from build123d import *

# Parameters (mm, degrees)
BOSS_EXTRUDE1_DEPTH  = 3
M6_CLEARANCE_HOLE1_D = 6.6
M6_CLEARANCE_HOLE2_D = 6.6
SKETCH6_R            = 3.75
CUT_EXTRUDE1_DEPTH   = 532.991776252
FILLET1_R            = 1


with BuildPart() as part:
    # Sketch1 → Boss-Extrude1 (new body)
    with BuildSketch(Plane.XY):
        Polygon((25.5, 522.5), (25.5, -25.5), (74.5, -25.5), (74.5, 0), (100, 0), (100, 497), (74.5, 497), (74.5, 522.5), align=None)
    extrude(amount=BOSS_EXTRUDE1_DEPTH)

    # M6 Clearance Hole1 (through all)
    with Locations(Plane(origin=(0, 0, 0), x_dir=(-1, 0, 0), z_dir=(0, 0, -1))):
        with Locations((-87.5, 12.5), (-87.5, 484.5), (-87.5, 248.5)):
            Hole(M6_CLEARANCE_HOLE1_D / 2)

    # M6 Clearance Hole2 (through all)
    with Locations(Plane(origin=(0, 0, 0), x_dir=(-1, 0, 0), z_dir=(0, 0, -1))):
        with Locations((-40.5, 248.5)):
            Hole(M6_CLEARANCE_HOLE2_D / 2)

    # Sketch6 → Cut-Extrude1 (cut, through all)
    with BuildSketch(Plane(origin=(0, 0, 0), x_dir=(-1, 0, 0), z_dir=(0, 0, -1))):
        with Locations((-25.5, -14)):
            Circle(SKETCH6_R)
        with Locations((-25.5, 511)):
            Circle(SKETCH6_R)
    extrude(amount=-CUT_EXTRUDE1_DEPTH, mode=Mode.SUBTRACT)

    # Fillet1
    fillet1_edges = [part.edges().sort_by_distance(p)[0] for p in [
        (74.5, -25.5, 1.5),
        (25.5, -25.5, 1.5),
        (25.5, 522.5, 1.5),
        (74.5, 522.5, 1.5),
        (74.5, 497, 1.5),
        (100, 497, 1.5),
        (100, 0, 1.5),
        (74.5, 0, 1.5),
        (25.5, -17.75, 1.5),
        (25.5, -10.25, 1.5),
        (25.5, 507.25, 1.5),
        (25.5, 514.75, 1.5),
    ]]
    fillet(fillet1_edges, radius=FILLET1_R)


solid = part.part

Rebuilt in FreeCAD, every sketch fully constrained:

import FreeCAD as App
import Part
import Sketcher
from FreeCAD import Vector
Q = App.Units.Quantity


def edges_at(feature, points):
    """Names of the edges that pass closest to the given points."""
    edges = feature.Shape.Edges
    near = lambda p: min(range(len(edges)), key=lambda i: edges[i].distToShape(Part.Vertex(*p))[0])
    return sorted({f"Edge{near(p) + 1}" for p in points})

doc = App.newDocument("Part")
body = doc.addObject("PartDesign::Body", "Body")

sketch1 = body.newObject("Sketcher::SketchObject", "Sketch")
sketch1.AttachmentSupport = (doc.getObject("XY_Plane"), [""])
sketch1.MapMode = "FlatFace"
sketch1.addGeometry([
    Part.LineSegment(Vector(26, 522, 0), Vector(26, -26, 0)),
    Part.LineSegment(Vector(26, -26, 0), Vector(74, -26, 0)),
    Part.LineSegment(Vector(74, -26, 0), Vector(74, 0, 0)),
    Part.LineSegment(Vector(74, 0, 0), Vector(100, 0, 0)),
    Part.LineSegment(Vector(100, 0, 0), Vector(100, 497, 0)),
    Part.LineSegment(Vector(100, 497, 0), Vector(74, 497, 0)),
    Part.LineSegment(Vector(74, 497, 0), Vector(74, 522, 0)),
    Part.LineSegment(Vector(74, 522, 0), Vector(26, 522, 0)),
], False)
sketch1.addConstraint([
    Sketcher.Constraint("Coincident", 0, 2, 1, 1),
    Sketcher.Constraint("Coincident", 1, 2, 2, 1),
    Sketcher.Constraint("Coincident", 2, 2, 3, 1),
    Sketcher.Constraint("Coincident", 3, 2, 4, 1),
    Sketcher.Constraint("Coincident", 4, 2, 5, 1),
    Sketcher.Constraint("Coincident", 5, 2, 6, 1),
    Sketcher.Constraint("Coincident", 6, 2, 7, 1),
    Sketcher.Constraint("Coincident", 7, 2, 0, 1),
    Sketcher.Constraint("Vertical", 0),
    Sketcher.Constraint("Horizontal", 1),
    Sketcher.Constraint("Vertical", 2),
    Sketcher.Constraint("Horizontal", 3),
    Sketcher.Constraint("Vertical", 4),
    Sketcher.Constraint("Horizontal", 5),
    Sketcher.Constraint("Vertical", 6),
    Sketcher.Constraint("Horizontal", 7),
    Sketcher.Constraint("PointOnObject", 2, 2, -1),
    Sketcher.Constraint("Vertical", 2, 2, 5, 2),
    Sketcher.Constraint("Equal", 5, 2),
    Sketcher.Constraint("Equal", 2, 6),
    Sketcher.Constraint("DistanceX", 1, 1, 1, 2, Q("49 mm")),
    Sketcher.Constraint("DistanceY", 0, 2, 0, 1, Q("548 mm")),
    Sketcher.Constraint("DistanceY", 4, 1, 4, 2, Q("497 mm")),
    Sketcher.Constraint("DistanceX", -1, 1, 3, 2, Q("100 mm")),
])
pad1 = body.newObject("PartDesign::Pad", "Pad")
pad1.Profile = sketch1
pad1.Length = 3

sketch2 = body.newObject("Sketcher::SketchObject", "Sketch001")
sketch2.AttachmentSupport = (doc.getObject("XY_Plane"), [""])
sketch2.MapMode = "FlatFace"
sketch2.addGeometry([
    Part.Circle(Vector(87.5, 12.5, 0), Vector(0, 0, 1), 3.3),
    Part.Circle(Vector(87.5, 484.5, 0), Vector(0, 0, 1), 3.3),
    Part.Circle(Vector(87.5, 248.5, 0), Vector(0, 0, 1), 3.3),
], False)
sketch2.addConstraint([
    Sketcher.Constraint("Equal", 0, 1),
    Sketcher.Constraint("Equal", 1, 2),
    Sketcher.Constraint("Vertical", 0, 3, 1, 3),
    Sketcher.Constraint("Vertical", 1, 3, 2, 3),
    Sketcher.Constraint("Diameter", 0, Q("6.6 mm")),
    Sketcher.Constraint("DistanceY", 0, 3, 1, 3, Q("472 mm")),
    Sketcher.Constraint("DistanceY", 0, 3, 2, 3, Q("236 mm")),
    Sketcher.Constraint("DistanceX", -1, 1, 0, 3, Q("87.5 mm")),
    Sketcher.Constraint("DistanceY", -1, 1, 0, 3, Q("12.5 mm")),
])
doc.recompute()
hole = body.newObject("PartDesign::Hole", "Hole")
hole.Profile = sketch2
hole.ThreadType = "None"
hole.Diameter = 6.6
hole.DepthType = "ThroughAll"
hole.Reversed = True

sketch3 = body.newObject("Sketcher::SketchObject", "Sketch002")
sketch3.AttachmentSupport = (doc.getObject("XY_Plane"), [""])
sketch3.MapMode = "FlatFace"
sketch3.addGeometry(Part.Circle(Vector(40.5, 248.5, 0), Vector(0, 0, 1), 3.3), False)
sketch3.addConstraint([
    Sketcher.Constraint("Diameter", 0, Q("6.6 mm")),
    Sketcher.Constraint("DistanceX", -1, 1, 0, 3, Q("40.5 mm")),
    Sketcher.Constraint("DistanceY", -1, 1, 0, 3, Q("248.5 mm")),
])
doc.recompute()
hole2 = body.newObject("PartDesign::Hole", "Hole001")
hole2.Profile = sketch3
hole2.ThreadType = "None"
hole2.Diameter = 6.6
hole2.DepthType = "ThroughAll"
hole2.Reversed = True

sketch4 = body.newObject("Sketcher::SketchObject", "Sketch003")
sketch4.AttachmentSupport = (doc.getObject("XY_Plane"), [""])
sketch4.MapMode = "FlatFace"
sketch4.addGeometry([
    Part.Circle(Vector(25.5, -14, 0), Vector(0, 0, 1), 3.8),
    Part.Circle(Vector(25.5, 511, 0), Vector(0, 0, 1), 3.8),
], False)
sketch4.addConstraint([
    Sketcher.Constraint("Equal", 0, 1),
    Sketcher.Constraint("Vertical", 0, 3, 1, 3),
    Sketcher.Constraint("Diameter", 0, Q("7.5 mm")),
    Sketcher.Constraint("DistanceY", 0, 3, -1, 1, Q("14 mm")),
    Sketcher.Constraint("DistanceY", -1, 1, 1, 3, Q("511 mm")),
    Sketcher.Constraint("DistanceX", -1, 1, 0, 3, Q("25.5 mm")),
])
pocket1 = body.newObject("PartDesign::Pocket", "Pocket")
pocket1.Profile = sketch4
pocket1.Type = "ThroughAll"
pocket1.Reversed = True
doc.recompute()

fillet = body.newObject("PartDesign::Fillet", "Fillet")
fillet.Base = (pocket1, edges_at(pocket1, [
    (74.5, -25.5, 1.5),
    (25.5, -25.5, 1.5),
    (25.5, 522.5, 1.5),
    (74.5, 522.5, 1.5),
    (74.5, 497, 1.5),
    (100, 497, 1.5),
    (100, 0, 1.5),
    (74.5, 0, 1.5),
    (25.5, -17.75, 1.5),
    (25.5, -10.25, 1.5),
    (25.5, 507.25, 1.5),
    (25.5, 514.75, 1.5),
]))
fillet.Radius = 1

doc.recompute()
